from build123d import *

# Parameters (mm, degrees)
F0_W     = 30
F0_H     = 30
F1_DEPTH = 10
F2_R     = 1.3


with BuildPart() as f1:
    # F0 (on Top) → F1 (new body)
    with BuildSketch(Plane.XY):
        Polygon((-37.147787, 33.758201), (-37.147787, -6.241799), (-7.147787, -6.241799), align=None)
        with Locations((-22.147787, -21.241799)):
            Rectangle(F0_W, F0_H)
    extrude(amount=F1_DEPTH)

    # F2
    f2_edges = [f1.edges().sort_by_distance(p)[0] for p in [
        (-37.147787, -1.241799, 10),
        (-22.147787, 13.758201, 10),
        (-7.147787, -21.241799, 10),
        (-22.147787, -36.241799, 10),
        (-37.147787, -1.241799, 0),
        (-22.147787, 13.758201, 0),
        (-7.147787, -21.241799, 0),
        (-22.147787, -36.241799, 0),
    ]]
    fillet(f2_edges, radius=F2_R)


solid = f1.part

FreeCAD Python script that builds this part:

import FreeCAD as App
import Part
import Sketcher
from FreeCAD import Vector


def edges_at(feature, points):
    """Names of the edges that pass closest to the given points."""
    edges = feature.Shape.Edges
    near = lambda p: min(range(len(edges)), key=lambda i: edges[i].distToShape(Part.Vertex(*p))[0])
    return sorted({f"Edge{near(p) + 1}" for p in points})


def add_polygon(sketch, points):
    """Adds a closed chain of lines whose ends are joined by coincident constraints."""
    first, n = sketch.GeometryCount, len(points)
    for a, b in zip(points, points[1:] + points[:1]):
        sketch.addGeometry(Part.LineSegment(App.Vector(*a, 0), App.Vector(*b, 0)), False)
    for i in range(n):
        sketch.addConstraint(Sketcher.Constraint("Coincident", first + i, 2, first + (i + 1) % n, 1))

doc = App.newDocument("Part")
params = doc.addObject("Spreadsheet::Sheet", "Params")
for row, (alias, value) in enumerate([
    ("sketch1_width", "30 mm"),
    ("sketch1_height", "70 mm"),
    ("pad1_length", "10 mm"),
    ("fillet_radius", "1.3 mm"),
], start=1):
    params.set(f"A{row}", alias)
    params.set(f"B{row}", "=" + value)
    params.setAlias(f"B{row}", alias)

body = doc.addObject("PartDesign::Body", "Body")

# Sketch on XY plane
sketch1 = doc.addObject("Sketcher::SketchObject", "Sketch")
body.addObject(sketch1)
sketch1.AttachmentSupport = (doc.XY_Plane, [""])
sketch1.MapMode = "FlatFace"
add_polygon(sketch1, [(-37, 34), (-37, -36), (-7, -36), (-7, -6)])  # lines 0-3
sketch1.addConstraint(Sketcher.Constraint("Vertical", 0))
sketch1.addConstraint(Sketcher.Constraint("Horizontal", 1))
sketch1.addConstraint(Sketcher.Constraint("Vertical", 2))
sketch1.addConstraint(Sketcher.Constraint("Equal", 1, 2))
sketch1.addConstraint(Sketcher.Constraint("DistanceX", 1, 1, 1, 2, 30.0))
sketch1.addConstraint(Sketcher.Constraint("DistanceY", 0, 2, 0, 1, 70.0))
sketch1.addConstraint(Sketcher.Constraint("DistanceY", 0, 2, -1, 1, 36.241799))
sketch1.addConstraint(Sketcher.Constraint("DistanceX", 0, 2, -1, 1, 37.147787))
sketch1.setExpression("Constraints[8]", "Params.sketch1_width")
sketch1.setExpression("Constraints[9]", "Params.sketch1_height")
pad1 = doc.addObject("PartDesign::Pad", "Pad")
body.addObject(pad1)
pad1.Profile = sketch1
pad1.setExpression("Length", "Params.pad1_length")
doc.recompute()

fillet = doc.addObject("PartDesign::Fillet", "Fillet")
body.addObject(fillet)
fillet.Base = (pad1, edges_at(pad1, [
    (-37.148, -1.242, 10),
    (-22.148, 13.758, 10),
    (-7.148, -21.242, 10),
    (-22.148, -36.242, 10),
    (-37.148, -1.242, 0),
    (-22.148, 13.758, 0),
    (-7.148, -21.242, 0),
    (-22.148, -36.242, 0),
]))
fillet.setExpression("Radius", "Params.fillet_radius")

doc.recompute()
